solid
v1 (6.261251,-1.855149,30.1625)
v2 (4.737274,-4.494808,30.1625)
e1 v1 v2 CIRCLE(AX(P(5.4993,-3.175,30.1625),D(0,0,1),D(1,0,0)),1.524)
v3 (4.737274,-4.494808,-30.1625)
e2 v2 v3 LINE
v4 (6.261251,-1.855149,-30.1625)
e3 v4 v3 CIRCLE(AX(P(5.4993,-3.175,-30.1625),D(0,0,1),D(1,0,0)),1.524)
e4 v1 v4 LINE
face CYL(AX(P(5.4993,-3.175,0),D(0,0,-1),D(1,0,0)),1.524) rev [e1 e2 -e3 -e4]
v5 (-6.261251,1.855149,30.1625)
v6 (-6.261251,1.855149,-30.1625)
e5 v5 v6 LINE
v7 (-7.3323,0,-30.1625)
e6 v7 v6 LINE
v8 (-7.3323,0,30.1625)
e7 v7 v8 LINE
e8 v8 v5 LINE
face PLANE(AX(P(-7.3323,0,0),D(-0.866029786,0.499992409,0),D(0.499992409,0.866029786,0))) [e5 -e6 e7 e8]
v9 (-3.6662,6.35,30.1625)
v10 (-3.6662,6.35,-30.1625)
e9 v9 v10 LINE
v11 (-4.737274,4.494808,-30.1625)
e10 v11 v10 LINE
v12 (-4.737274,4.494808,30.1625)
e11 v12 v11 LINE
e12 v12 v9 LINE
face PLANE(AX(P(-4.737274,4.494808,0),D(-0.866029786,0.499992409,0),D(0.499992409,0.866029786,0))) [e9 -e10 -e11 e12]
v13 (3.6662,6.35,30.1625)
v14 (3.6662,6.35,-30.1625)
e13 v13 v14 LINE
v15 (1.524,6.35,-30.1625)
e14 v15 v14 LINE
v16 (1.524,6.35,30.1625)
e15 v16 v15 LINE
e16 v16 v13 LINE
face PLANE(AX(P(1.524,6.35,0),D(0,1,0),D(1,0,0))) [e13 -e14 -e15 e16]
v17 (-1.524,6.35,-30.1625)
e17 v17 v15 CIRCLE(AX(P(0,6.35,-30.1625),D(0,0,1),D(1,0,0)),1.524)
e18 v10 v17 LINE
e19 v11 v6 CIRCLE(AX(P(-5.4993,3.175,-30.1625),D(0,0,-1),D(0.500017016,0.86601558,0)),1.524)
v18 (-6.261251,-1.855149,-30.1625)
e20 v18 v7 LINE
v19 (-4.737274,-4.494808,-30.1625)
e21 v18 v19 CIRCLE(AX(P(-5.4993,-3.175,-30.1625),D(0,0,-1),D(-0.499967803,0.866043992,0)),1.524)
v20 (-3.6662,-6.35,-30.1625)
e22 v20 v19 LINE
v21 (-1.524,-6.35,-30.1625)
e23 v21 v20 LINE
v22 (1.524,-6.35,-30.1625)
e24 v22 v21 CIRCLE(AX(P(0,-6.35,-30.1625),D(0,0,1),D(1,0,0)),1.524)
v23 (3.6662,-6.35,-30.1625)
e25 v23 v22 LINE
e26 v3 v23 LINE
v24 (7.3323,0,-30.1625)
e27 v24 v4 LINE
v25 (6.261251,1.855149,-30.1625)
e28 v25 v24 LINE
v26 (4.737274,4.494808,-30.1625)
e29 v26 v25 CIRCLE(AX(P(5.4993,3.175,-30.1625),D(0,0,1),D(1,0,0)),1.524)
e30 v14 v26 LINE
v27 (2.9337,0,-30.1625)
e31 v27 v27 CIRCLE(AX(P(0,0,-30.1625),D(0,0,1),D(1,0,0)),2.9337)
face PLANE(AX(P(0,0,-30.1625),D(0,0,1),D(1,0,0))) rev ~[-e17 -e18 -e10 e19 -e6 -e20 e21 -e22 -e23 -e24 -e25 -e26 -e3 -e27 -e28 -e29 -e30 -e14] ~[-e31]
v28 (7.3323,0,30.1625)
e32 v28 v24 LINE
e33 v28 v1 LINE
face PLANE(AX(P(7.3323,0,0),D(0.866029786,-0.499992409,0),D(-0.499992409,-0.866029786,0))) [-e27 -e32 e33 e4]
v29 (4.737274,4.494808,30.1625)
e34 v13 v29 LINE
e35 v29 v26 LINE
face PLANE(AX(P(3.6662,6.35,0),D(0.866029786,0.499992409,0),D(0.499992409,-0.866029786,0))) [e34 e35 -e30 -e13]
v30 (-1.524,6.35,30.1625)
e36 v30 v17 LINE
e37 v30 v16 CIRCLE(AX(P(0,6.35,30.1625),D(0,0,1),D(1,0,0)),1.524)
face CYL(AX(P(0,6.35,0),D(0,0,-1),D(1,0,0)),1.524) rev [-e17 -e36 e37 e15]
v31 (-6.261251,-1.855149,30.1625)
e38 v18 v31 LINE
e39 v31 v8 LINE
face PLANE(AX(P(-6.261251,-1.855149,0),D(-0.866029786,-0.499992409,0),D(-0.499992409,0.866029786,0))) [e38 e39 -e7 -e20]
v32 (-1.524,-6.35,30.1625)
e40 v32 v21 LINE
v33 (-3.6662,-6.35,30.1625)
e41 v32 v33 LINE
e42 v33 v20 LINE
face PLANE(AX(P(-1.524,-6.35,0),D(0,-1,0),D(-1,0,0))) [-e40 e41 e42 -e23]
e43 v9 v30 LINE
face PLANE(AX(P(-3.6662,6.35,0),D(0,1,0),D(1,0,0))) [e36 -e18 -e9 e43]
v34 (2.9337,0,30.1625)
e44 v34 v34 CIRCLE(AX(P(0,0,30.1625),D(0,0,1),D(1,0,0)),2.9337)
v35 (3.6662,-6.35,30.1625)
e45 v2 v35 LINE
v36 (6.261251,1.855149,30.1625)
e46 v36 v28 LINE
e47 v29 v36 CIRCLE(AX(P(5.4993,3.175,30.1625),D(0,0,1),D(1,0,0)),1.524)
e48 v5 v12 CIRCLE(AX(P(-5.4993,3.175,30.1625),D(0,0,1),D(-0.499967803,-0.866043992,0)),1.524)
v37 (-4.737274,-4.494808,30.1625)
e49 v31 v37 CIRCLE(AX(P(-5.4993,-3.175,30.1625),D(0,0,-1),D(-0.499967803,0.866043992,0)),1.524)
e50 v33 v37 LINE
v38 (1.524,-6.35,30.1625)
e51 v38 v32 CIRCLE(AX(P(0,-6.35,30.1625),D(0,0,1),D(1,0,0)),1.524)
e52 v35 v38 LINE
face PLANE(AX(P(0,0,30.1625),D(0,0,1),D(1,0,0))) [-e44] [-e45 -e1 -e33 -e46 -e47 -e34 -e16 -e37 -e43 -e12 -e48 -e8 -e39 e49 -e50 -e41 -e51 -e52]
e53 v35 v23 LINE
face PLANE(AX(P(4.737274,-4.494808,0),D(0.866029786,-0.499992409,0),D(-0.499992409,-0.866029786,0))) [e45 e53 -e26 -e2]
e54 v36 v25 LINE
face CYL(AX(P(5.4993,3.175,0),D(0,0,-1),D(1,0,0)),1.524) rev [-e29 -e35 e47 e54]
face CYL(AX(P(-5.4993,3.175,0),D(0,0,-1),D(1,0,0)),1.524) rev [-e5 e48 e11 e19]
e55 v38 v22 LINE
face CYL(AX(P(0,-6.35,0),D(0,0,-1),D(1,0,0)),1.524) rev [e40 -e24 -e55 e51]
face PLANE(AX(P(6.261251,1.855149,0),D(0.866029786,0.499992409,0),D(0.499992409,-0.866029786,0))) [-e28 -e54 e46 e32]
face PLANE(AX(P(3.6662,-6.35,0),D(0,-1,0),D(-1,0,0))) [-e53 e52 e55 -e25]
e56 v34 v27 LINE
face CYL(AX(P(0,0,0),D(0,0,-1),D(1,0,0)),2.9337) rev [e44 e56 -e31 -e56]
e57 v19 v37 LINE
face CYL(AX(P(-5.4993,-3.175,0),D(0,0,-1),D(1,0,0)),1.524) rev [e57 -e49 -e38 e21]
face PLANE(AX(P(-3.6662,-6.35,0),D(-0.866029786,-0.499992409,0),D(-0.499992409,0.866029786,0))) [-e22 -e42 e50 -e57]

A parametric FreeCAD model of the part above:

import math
import FreeCAD as App
import Part
import Sketcher
from FreeCAD import Vector
Q = App.Units.Quantity

doc = App.newDocument("Part")
params = doc.addObject("Spreadsheet::Sheet", "Params")
for row, (alias, value) in enumerate([
    ("sketch1_radius", "0.06 in"),
    ("sketch1_diameter", "0.231 in"),
    ("pad1_length", "2.375 in"),
], start=1):
    params.set(f"A{row}", alias)
    params.set(f"B{row}", "=" + value)
    params.setAlias(f"B{row}", alias)

body = doc.addObject("PartDesign::Body", "Body")

sketch1 = body.newObject("Sketcher::SketchObject", "Sketch")
sketch1.AttachmentSupport = (doc.getObject("XY_Plane"), [""])
sketch1.MapMode = "FlatFace"
sketch1.addGeometry([
    Part.LineSegment(Vector(-6.261251, 1.855149, 0), Vector(-7.3323, 0, 0)),
    Part.LineSegment(Vector(-7.3323, 0, 0), Vector(-6.261251, -1.855149, 0)),
    Part.ArcOfCircle(Part.Circle(Vector(-5.4993, -3.175, 0), Vector(0, 0, 1), 1.524), math.radians(-59.998874), math.radians(119.99787)),
    Part.LineSegment(Vector(-4.737274, -4.494808, 0), Vector(-3.6662, -6.35, 0)),
    Part.LineSegment(Vector(-3.6662, -6.35, 0), Vector(-1.524, -6.35, 0)),
    Part.ArcOfCircle(Part.Circle(Vector(0, -6.35, 0), Vector(0, 0, 1), 1.524), math.radians(0), math.radians(180)),
    Part.LineSegment(Vector(1.524, -6.35, 0), Vector(3.6662, -6.35, 0)),
    Part.LineSegment(Vector(3.6662, -6.35, 0), Vector(4.737274, -4.494808, 0)),
    Part.ArcOfCircle(Part.Circle(Vector(5.4993, -3.175, 0), Vector(0, 0, 1), 1.524), math.radians(60.00213), math.radians(239.998874)),
    Part.LineSegment(Vector(6.261251, -1.855149, 0), Vector(7.3323, 0, 0)),
    Part.LineSegment(Vector(7.3323, 0, 0), Vector(6.261251, 1.855149, 0)),
    Part.ArcOfCircle(Part.Circle(Vector(5.4993, 3.175, 0), Vector(0, 0, 1), 1.524), math.radians(120.001126), math.radians(299.99787)),
    Part.LineSegment(Vector(4.737274, 4.494808, 0), Vector(3.6662, 6.35, 0)),
    Part.LineSegment(Vector(3.6662, 6.35, 0), Vector(1.524, 6.35, 0)),
    Part.ArcOfCircle(Part.Circle(Vector(0, 6.35, 0), Vector(0, 0, 1), 1.524), math.radians(180), math.radians(360)),
    Part.LineSegment(Vector(-1.524, 6.35, 0), Vector(-3.6662, 6.35, 0)),
    Part.LineSegment(Vector(-3.6662, 6.35, 0), Vector(-4.737274, 4.494808, 0)),
    Part.ArcOfCircle(Part.Circle(Vector(-5.4993, 3.175, 0), Vector(0, 0, 1), 1.524), math.radians(-119.99787), math.radians(59.998874)),
    Part.Circle(Vector(0, 0, 0), Vector(0, 0, 1), 2.9337),
], False)
sketch1.addConstraint([
    Sketcher.Constraint("Coincident", 0, 2, 1, 1),
    Sketcher.Constraint("Coincident", 1, 2, 2, 2),
    Sketcher.Constraint("Coincident", 2, 1, 3, 1),
    Sketcher.Constraint("Coincident", 3, 2, 4, 1),
    Sketcher.Constraint("Coincident", 4, 2, 5, 2),
    Sketcher.Constraint("Coincident", 5, 1, 6, 1),
    Sketcher.Constraint("Coincident", 6, 2, 7, 1),
    Sketcher.Constraint("Coincident", 7, 2, 8, 2),
    Sketcher.Constraint("Coincident", 8, 1, 9, 1),
    Sketcher.Constraint("Coincident", 9, 2, 10, 1),
    Sketcher.Constraint("Coincident", 10, 2, 11, 2),
    Sketcher.Constraint("Coincident", 11, 1, 12, 1),
    Sketcher.Constraint("Coincident", 12, 2, 13, 1),
    Sketcher.Constraint("Coincident", 13, 2, 14, 2),
    Sketcher.Constraint("Coincident", 14, 1, 15, 1),
    Sketcher.Constraint("Coincident", 15, 2, 16, 1),
    Sketcher.Constraint("Coincident", 16, 2, 17, 2),
    Sketcher.Constraint("Coincident", 17, 1, 0, 1),
    Sketcher.Constraint("Horizontal", 4),
    Sketcher.Constraint("Horizontal", 6),
    Sketcher.Constraint("Horizontal", 13),
    Sketcher.Constraint("Horizontal", 15),
    Sketcher.Constraint("Coincident", 18, 3, -1, 1),
    Sketcher.Constraint("Equal", 2, 5),
    Sketcher.Constraint("Equal", 5, 8),
    Sketcher.Constraint("Equal", 8, 11),
    Sketcher.Constraint("Equal", 11, 14),
    Sketcher.Constraint("Equal", 14, 17),
    Sketcher.Constraint("Symmetric", 2, 3, 11, 3, -1, 1),
    Sketcher.Constraint("Symmetric", 5, 3, 14, 3, -1, 1),
    Sketcher.Constraint("Symmetric", 8, 3, 17, 3, -1, 1),
    Sketcher.Constraint("Symmetric", 0, 2, 9, 2, -1, 1),
    Sketcher.Constraint("Symmetric", 3, 2, 12, 2, -1, 1),
    Sketcher.Constraint("Symmetric", 6, 2, 15, 2, -1, 1),
    Sketcher.Constraint("Symmetric", 2, 3, 8, 3, -2),
    Sketcher.Constraint("Symmetric", 4, 2, 5, 1, -2),
    Sketcher.Constraint("PointOnObject", 0, 2, -1),
    Sketcher.Constraint("Parallel", 1, 3),
    Sketcher.Constraint("Parallel", 0, 7),
    Sketcher.Constraint("Parallel", 7, 9),
    Sketcher.Constraint("Parallel", 3, 10),
    Sketcher.Constraint("Parallel", 10, 12),
    Sketcher.Constraint("Parallel", 9, 16),
    Sketcher.Constraint("Horizontal", 5, 3, 3, 2),
    Sketcher.Constraint("Horizontal", 2, 1, 7, 2),
    Sketcher.Constraint("Horizontal", 1, 2, 8, 1),
    Sketcher.Constraint("Equal", 1, 3),
    Sketcher.Constraint("Radius", 2, Q("0.06 in")),
    Sketcher.Constraint("Diameter", 18, Q("0.231 in")),
    Sketcher.Constraint("DistanceY", 5, 3, 14, 3, Q("0.5 in")),
    Sketcher.Constraint("Angle", 0, Q("-119.9995 deg")),
    Sketcher.Constraint("DistanceY", 8, 3, 11, 3, Q("0.25 in")),
    Sketcher.Constraint("DistanceX", 1, 2, 2, 3, Q("0.03 in")),
    Sketcher.Constraint("DistanceX", 4, 1, 4, 2, 2.1422),
])
sketch1.setExpression("Constraints[47]", "Params.sketch1_radius")
sketch1.setExpression("Constraints[48]", "Params.sketch1_diameter")
pad1 = body.newObject("PartDesign::Pad", "Pad")
pad1.Profile = sketch1
pad1.setExpression("Length", "Params.pad1_length")
pad1.Midplane = True

doc.recompute()
